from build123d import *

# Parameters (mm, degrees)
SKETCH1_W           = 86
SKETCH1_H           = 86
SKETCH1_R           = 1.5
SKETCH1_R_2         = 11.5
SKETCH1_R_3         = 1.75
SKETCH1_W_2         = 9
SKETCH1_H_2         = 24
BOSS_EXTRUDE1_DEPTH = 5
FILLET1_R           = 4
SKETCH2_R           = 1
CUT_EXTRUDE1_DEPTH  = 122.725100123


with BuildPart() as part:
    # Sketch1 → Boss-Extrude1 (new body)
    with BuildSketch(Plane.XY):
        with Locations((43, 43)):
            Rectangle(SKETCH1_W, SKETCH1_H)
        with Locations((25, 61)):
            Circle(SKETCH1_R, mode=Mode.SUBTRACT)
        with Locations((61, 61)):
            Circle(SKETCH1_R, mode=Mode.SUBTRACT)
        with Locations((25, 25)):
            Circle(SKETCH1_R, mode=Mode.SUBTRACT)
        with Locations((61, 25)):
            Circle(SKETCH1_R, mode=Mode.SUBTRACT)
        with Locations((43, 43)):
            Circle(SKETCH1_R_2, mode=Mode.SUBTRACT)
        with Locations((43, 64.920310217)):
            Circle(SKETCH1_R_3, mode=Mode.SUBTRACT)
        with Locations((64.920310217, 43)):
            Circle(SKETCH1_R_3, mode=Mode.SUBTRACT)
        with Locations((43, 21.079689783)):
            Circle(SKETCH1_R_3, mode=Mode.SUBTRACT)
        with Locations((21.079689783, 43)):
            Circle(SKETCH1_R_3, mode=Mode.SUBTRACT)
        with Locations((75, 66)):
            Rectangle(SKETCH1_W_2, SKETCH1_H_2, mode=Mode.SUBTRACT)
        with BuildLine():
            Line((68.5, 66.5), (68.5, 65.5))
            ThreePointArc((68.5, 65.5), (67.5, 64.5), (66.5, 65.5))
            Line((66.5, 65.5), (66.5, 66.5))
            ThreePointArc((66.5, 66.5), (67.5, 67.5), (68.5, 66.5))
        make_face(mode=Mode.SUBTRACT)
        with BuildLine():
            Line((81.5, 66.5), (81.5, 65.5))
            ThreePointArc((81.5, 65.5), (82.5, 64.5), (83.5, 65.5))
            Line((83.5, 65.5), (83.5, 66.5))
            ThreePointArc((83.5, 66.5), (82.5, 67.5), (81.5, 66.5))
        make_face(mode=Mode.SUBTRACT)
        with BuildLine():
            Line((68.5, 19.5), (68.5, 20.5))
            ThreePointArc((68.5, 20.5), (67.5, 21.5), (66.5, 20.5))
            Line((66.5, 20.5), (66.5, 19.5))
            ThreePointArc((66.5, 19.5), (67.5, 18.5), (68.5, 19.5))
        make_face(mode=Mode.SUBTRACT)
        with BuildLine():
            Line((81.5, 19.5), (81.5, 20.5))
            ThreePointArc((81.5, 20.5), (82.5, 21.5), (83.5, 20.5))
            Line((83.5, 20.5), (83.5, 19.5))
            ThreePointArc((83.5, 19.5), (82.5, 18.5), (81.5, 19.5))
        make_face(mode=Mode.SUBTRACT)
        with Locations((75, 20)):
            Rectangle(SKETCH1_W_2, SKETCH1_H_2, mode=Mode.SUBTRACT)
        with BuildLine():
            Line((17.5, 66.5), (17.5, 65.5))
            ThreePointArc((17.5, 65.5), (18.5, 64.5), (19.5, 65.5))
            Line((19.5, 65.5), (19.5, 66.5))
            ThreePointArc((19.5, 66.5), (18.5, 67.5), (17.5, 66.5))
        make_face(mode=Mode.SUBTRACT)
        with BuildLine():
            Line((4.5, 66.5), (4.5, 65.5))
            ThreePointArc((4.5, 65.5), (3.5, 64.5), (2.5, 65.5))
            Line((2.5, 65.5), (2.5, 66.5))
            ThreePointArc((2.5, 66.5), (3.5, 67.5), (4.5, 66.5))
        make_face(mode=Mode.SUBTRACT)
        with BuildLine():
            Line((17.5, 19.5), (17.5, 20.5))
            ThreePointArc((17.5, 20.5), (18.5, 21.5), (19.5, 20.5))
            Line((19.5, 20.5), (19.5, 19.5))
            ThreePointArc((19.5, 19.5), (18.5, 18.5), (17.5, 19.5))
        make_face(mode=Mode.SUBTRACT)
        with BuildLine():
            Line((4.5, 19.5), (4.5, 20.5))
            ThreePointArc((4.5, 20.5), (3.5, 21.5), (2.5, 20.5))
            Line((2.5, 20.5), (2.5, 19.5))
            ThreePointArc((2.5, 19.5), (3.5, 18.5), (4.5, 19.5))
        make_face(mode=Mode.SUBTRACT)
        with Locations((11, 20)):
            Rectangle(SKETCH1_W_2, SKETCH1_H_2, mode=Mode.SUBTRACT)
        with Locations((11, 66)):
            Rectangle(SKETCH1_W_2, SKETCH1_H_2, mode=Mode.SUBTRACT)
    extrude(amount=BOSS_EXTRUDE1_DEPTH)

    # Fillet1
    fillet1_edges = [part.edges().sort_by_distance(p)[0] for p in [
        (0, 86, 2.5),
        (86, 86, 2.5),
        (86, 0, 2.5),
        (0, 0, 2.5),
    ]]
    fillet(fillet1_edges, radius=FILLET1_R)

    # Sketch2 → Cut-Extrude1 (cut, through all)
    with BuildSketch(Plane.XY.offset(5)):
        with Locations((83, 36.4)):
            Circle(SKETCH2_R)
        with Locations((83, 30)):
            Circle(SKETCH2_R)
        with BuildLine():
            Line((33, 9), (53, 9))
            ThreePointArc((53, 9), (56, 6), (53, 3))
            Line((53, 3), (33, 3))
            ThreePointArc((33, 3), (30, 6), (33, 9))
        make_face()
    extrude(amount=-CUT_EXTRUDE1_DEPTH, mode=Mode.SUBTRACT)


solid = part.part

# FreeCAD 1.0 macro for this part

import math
import FreeCAD as App
import Part
import Sketcher


def edges_at(feature, points):
    """Names of the edges that pass closest to the given points."""
    edges = feature.Shape.Edges
    near = lambda p: min(range(len(edges)), key=lambda i: edges[i].distToShape(Part.Vertex(*p))[0])
    return sorted({f"Edge{near(p) + 1}" for p in points})

doc = App.newDocument("Part")
body = doc.addObject("PartDesign::Body", "Body")

sketch1 = body.newObject("Sketcher::SketchObject", "Sketch")
sketch1.AttachmentSupport = (doc.getObject("XY_Plane"), [""])
sketch1.MapMode = "FlatFace"
sketch1.addGeometry([
    Part.LineSegment(App.Vector(0, 86, 0), App.Vector(0, 0, 0)),
    Part.LineSegment(App.Vector(0, 0, 0), App.Vector(86, 0, 0)),
    Part.LineSegment(App.Vector(86, 0, 0), App.Vector(86, 86, 0)),
    Part.LineSegment(App.Vector(86, 86, 0), App.Vector(0, 86, 0)),
    Part.LineSegment(App.Vector(4.5, 20.5, 0), App.Vector(4.5, 19.5, 0)),
    Part.ArcOfCircle(Part.Circle(App.Vector(3.5, 19.5, 0), App.Vector(0, 0, 1), 1), math.radians(180), math.radians(360)),
    Part.LineSegment(App.Vector(2.5, 19.5, 0), App.Vector(2.5, 20.5, 0)),
    Part.ArcOfCircle(Part.Circle(App.Vector(3.5, 20.5, 0), App.Vector(0, 0, 1), 1), math.radians(0), math.radians(180)),
    Part.LineSegment(App.Vector(15.5, 8, 0), App.Vector(6.5, 8, 0)),
    Part.LineSegment(App.Vector(6.5, 8, 0), App.Vector(6.5, 32, 0)),
    Part.LineSegment(App.Vector(6.5, 32, 0), App.Vector(15.5, 32, 0)),
    Part.LineSegment(App.Vector(15.5, 32, 0), App.Vector(15.5, 8, 0)),
    Part.ArcOfCircle(Part.Circle(App.Vector(18.5, 19.5, 0), App.Vector(0, 0, 1), 1), math.radians(180), math.radians(360)),
    Part.LineSegment(App.Vector(17.5, 19.5, 0), App.Vector(17.5, 20.5, 0)),
    Part.ArcOfCircle(Part.Circle(App.Vector(18.5, 20.5, 0), App.Vector(0, 0, 1), 1), math.radians(0), math.radians(180)),
    Part.LineSegment(App.Vector(19.5, 20.5, 0), App.Vector(19.5, 19.5, 0)),
    Part.Circle(App.Vector(25, 25, 0), App.Vector(0, 0, 1), 1.5),
    Part.Circle(App.Vector(43, 21.1, 0), App.Vector(0, 0, 1), 1.8),
    Part.Circle(App.Vector(61, 25, 0), App.Vector(0, 0, 1), 1.5),
    Part.LineSegment(App.Vector(68.5, 20.5, 0), App.Vector(68.5, 19.5, 0)),
    Part.ArcOfCircle(Part.Circle(App.Vector(67.5, 19.5, 0), App.Vector(0, 0, 1), 1), math.radians(180), math.radians(360)),
    Part.LineSegment(App.Vector(66.5, 19.5, 0), App.Vector(66.5, 20.5, 0)),
    Part.ArcOfCircle(Part.Circle(App.Vector(67.5, 20.5, 0), App.Vector(0, 0, 1), 1), math.radians(0), math.radians(180)),
    Part.LineSegment(App.Vector(79.5, 8, 0), App.Vector(70.5, 8, 0)),
    Part.LineSegment(App.Vector(70.5, 8, 0), App.Vector(70.5, 32, 0)),
    Part.LineSegment(App.Vector(70.5, 32, 0), App.Vector(79.5, 32, 0)),
    Part.LineSegment(App.Vector(79.5, 32, 0), App.Vector(79.5, 8, 0)),
    Part.ArcOfCircle(Part.Circle(App.Vector(82.5, 19.5, 0), App.Vector(0, 0, 1), 1), math.radians(180), math.radians(360)),
    Part.LineSegment(App.Vector(81.5, 19.5, 0), App.Vector(81.5, 20.5, 0)),
    Part.ArcOfCircle(Part.Circle(App.Vector(82.5, 20.5, 0), App.Vector(0, 0, 1), 1), math.radians(0), math.radians(180)),
    Part.LineSegment(App.Vector(83.5, 20.5, 0), App.Vector(83.5, 19.5, 0)),
    Part.Circle(App.Vector(21.1, 43, 0), App.Vector(0, 0, 1), 1.8),
    Part.ArcOfCircle(Part.Circle(App.Vector(3.5, 66.5, 0), App.Vector(0, 0, 1), 1), math.radians(0), math.radians(180)),
    Part.LineSegment(App.Vector(4.5, 66.5, 0), App.Vector(4.5, 65.5, 0)),
    Part.ArcOfCircle(Part.Circle(App.Vector(3.5, 65.5, 0), App.Vector(0, 0, 1), 1), math.radians(180), math.radians(360)),
    Part.LineSegment(App.Vector(2.5, 65.5, 0), App.Vector(2.5, 66.5, 0)),
    Part.LineSegment(App.Vector(15.5, 54, 0), App.Vector(6.5, 54, 0)),
    Part.LineSegment(App.Vector(6.5, 54, 0), App.Vector(6.5, 78, 0)),
    Part.LineSegment(App.Vector(6.5, 78, 0), App.Vector(15.5, 78, 0)),
    Part.LineSegment(App.Vector(15.5, 78, 0), App.Vector(15.5, 54, 0)),
    Part.LineSegment(App.Vector(17.5, 65.5, 0), App.Vector(17.5, 66.5, 0)),
    Part.ArcOfCircle(Part.Circle(App.Vector(18.5, 66.5, 0), App.Vector(0, 0, 1), 1), math.radians(0), math.radians(180)),
    Part.LineSegment(App.Vector(19.5, 66.5, 0), App.Vector(19.5, 65.5, 0)),
    Part.ArcOfCircle(Part.Circle(App.Vector(18.5, 65.5, 0), App.Vector(0, 0, 1), 1), math.radians(180), math.radians(360)),
    Part.Circle(App.Vector(25, 61, 0), App.Vector(0, 0, 1), 1.5),
    Part.Circle(App.Vector(43, 43, 0), App.Vector(0, 0, 1), 11.5),
    Part.Circle(App.Vector(64.9, 43, 0), App.Vector(0, 0, 1), 1.8),
    Part.Circle(App.Vector(43, 64.9, 0), App.Vector(0, 0, 1), 1.8),
    Part.Circle(App.Vector(61, 61, 0), App.Vector(0, 0, 1), 1.5),
    Part.ArcOfCircle(Part.Circle(App.Vector(67.5, 66.5, 0), App.Vector(0, 0, 1), 1), math.radians(0), math.radians(180)),
    Part.LineSegment(App.Vector(68.5, 66.5, 0), App.Vector(68.5, 65.5, 0)),
    Part.ArcOfCircle(Part.Circle(App.Vector(67.5, 65.5, 0), App.Vector(0, 0, 1), 1), math.radians(180), math.radians(360)),
    Part.LineSegment(App.Vector(66.5, 65.5, 0), App.Vector(66.5, 66.5, 0)),
    Part.LineSegment(App.Vector(79.5, 54, 0), App.Vector(70.5, 54, 0)),
    Part.LineSegment(App.Vector(70.5, 54, 0), App.Vector(70.5, 78, 0)),
    Part.LineSegment(App.Vector(70.5, 78, 0), App.Vector(79.5, 78, 0)),
    Part.LineSegment(App.Vector(79.5, 78, 0), App.Vector(79.5, 54, 0)),
    Part.LineSegment(App.Vector(81.5, 65.5, 0), App.Vector(81.5, 66.5, 0)),
    Part.ArcOfCircle(Part.Circle(App.Vector(82.5, 66.5, 0), App.Vector(0, 0, 1), 1), math.radians(0), math.radians(180)),
    Part.LineSegment(App.Vector(83.5, 66.5, 0), App.Vector(83.5, 65.5, 0)),
    Part.ArcOfCircle(Part.Circle(App.Vector(82.5, 65.5, 0), App.Vector(0, 0, 1), 1), math.radians(180), math.radians(360)),
], False)
sketch1.addConstraint([
    Sketcher.Constraint("Coincident", 0, 2, 1, 1),
    Sketcher.Constraint("Coincident", 1, 2, 2, 1),
    Sketcher.Constraint("Coincident", 2, 2, 3, 1),
    Sketcher.Constraint("Coincident", 3, 2, 0, 1),
    Sketcher.Constraint("Tangent", 4, 2, 5, 2),
    Sketcher.Constraint("Tangent", 5, 1, 6, 1),
    Sketcher.Constraint("Tangent", 6, 2, 7, 2),
    Sketcher.Constraint("Tangent", 7, 1, 4, 1),
    Sketcher.Constraint("Coincident", 8, 2, 9, 1),
    Sketcher.Constraint("Coincident", 9, 2, 10, 1),
    Sketcher.Constraint("Coincident", 10, 2, 11, 1),
    Sketcher.Constraint("Coincident", 11, 2, 8, 1),
    Sketcher.Constraint("Tangent", 12, 1, 13, 1),
    Sketcher.Constraint("Tangent", 13, 2, 14, 2),
    Sketcher.Constraint("Tangent", 14, 1, 15, 1),
    Sketcher.Constraint("Tangent", 15, 2, 12, 2),
    Sketcher.Constraint("Tangent", 19, 2, 20, 2),
    Sketcher.Constraint("Tangent", 20, 1, 21, 1),
    Sketcher.Constraint("Tangent", 21, 2, 22, 2),
    Sketcher.Constraint("Tangent", 22, 1, 19, 1),
    Sketcher.Constraint("Coincident", 23, 2, 24, 1),
    Sketcher.Constraint("Coincident", 24, 2, 25, 1),
    Sketcher.Constraint("Coincident", 25, 2, 26, 1),
    Sketcher.Constraint("Coincident", 26, 2, 23, 1),
    Sketcher.Constraint("Tangent", 27, 1, 28, 1),
    Sketcher.Constraint("Tangent", 28, 2, 29, 2),
    Sketcher.Constraint("Tangent", 29, 1, 30, 1),
    Sketcher.Constraint("Tangent", 30, 2, 27, 2),
    Sketcher.Constraint("Tangent", 32, 1, 33, 1),
    Sketcher.Constraint("Tangent", 33, 2, 34, 2),
    Sketcher.Constraint("Tangent", 34, 1, 35, 1),
    Sketcher.Constraint("Tangent", 35, 2, 32, 2),
    Sketcher.Constraint("Coincident", 36, 2, 37, 1),
    Sketcher.Constraint("Coincident", 37, 2, 38, 1),
    Sketcher.Constraint("Coincident", 38, 2, 39, 1),
    Sketcher.Constraint("Coincident", 39, 2, 36, 1),
    Sketcher.Constraint("Tangent", 40, 2, 41, 2),
    Sketcher.Constraint("Tangent", 41, 1, 42, 1),
    Sketcher.Constraint("Tangent", 42, 2, 43, 2),
    Sketcher.Constraint("Tangent", 43, 1, 40, 1),
    Sketcher.Constraint("Tangent", 49, 1, 50, 1),
    Sketcher.Constraint("Tangent", 50, 2, 51, 2),
    Sketcher.Constraint("Tangent", 51, 1, 52, 1),
    Sketcher.Constraint("Tangent", 52, 2, 49, 2),
    Sketcher.Constraint("Coincident", 53, 2, 54, 1),
    Sketcher.Constraint("Coincident", 54, 2, 55, 1),
    Sketcher.Constraint("Coincident", 55, 2, 56, 1),
    Sketcher.Constraint("Coincident", 56, 2, 53, 1),
    Sketcher.Constraint("Tangent", 57, 2, 58, 2),
    Sketcher.Constraint("Tangent", 58, 1, 59, 1),
    Sketcher.Constraint("Tangent", 59, 2, 60, 2),
    Sketcher.Constraint("Tangent", 60, 1, 57, 1),
    Sketcher.Constraint("Vertical", 0),
    Sketcher.Constraint("Horizontal", 1),
    Sketcher.Constraint("Vertical", 2),
    Sketcher.Constraint("Horizontal", 3),
    Sketcher.Constraint("Vertical", 4),
    Sketcher.Constraint("Vertical", 6),
    Sketcher.Constraint("Horizontal", 8),
    Sketcher.Constraint("Vertical", 9),
    Sketcher.Constraint("Horizontal", 10),
    Sketcher.Constraint("Vertical", 11),
    Sketcher.Constraint("Vertical", 13),
    Sketcher.Constraint("Vertical", 15),
    Sketcher.Constraint("Vertical", 19),
    Sketcher.Constraint("Vertical", 21),
    Sketcher.Constraint("Horizontal", 23),
    Sketcher.Constraint("Vertical", 24),
    Sketcher.Constraint("Horizontal", 25),
    Sketcher.Constraint("Vertical", 26),
    Sketcher.Constraint("Vertical", 28),
    Sketcher.Constraint("Vertical", 30),
    Sketcher.Constraint("Vertical", 33),
    Sketcher.Constraint("Vertical", 35),
    Sketcher.Constraint("Horizontal", 36),
    Sketcher.Constraint("Vertical", 37),
    Sketcher.Constraint("Horizontal", 38),
    Sketcher.Constraint("Vertical", 39),
    Sketcher.Constraint("Vertical", 40),
    Sketcher.Constraint("Vertical", 42),
    Sketcher.Constraint("Vertical", 50),
    Sketcher.Constraint("Vertical", 52),
    Sketcher.Constraint("Horizontal", 53),
    Sketcher.Constraint("Vertical", 54),
    Sketcher.Constraint("Horizontal", 55),
    Sketcher.Constraint("Vertical", 56),
    Sketcher.Constraint("Vertical", 57),
    Sketcher.Constraint("Vertical", 59),
    Sketcher.Constraint("Coincident", 0, 2, -1, 1),
    Sketcher.Constraint("Equal", 7, 12),
    Sketcher.Constraint("Equal", 16, 18),
    Sketcher.Constraint("Equal", 14, 20),
    Sketcher.Constraint("Equal", 22, 27),
    Sketcher.Constraint("Equal", 17, 31),
    Sketcher.Constraint("Equal", 29, 32),
    Sketcher.Constraint("Equal", 34, 41),
    Sketcher.Constraint("Equal", 18, 44),
    Sketcher.Constraint("Equal", 31, 46),
    Sketcher.Constraint("Equal", 46, 47),
    Sketcher.Constraint("Equal", 44, 48),
    Sketcher.Constraint("Equal", 43, 49),
    Sketcher.Constraint("Equal", 51, 58),
    Sketcher.Constraint("Horizontal", 5, 3, 12, 3),
    Sketcher.Constraint("Horizontal", 7, 3, 14, 3),
    Sketcher.Constraint("Horizontal", 16, 3, 18, 3),
    Sketcher.Constraint("Horizontal", 12, 3, 20, 3),
    Sketcher.Constraint("Horizontal", 14, 3, 22, 3),
    Sketcher.Constraint("Horizontal", 20, 3, 27, 3),
    Sketcher.Constraint("Horizontal", 22, 3, 29, 3),
    Sketcher.Constraint("Horizontal", 32, 3, 41, 3),
    Sketcher.Constraint("Horizontal", 34, 3, 43, 3),
    Sketcher.Constraint("Horizontal", 31, 3, 45, 3),
    Sketcher.Constraint("Horizontal", 45, 3, 46, 3),
    Sketcher.Constraint("Horizontal", 44, 3, 48, 3),
    Sketcher.Constraint("Horizontal", 41, 3, 49, 3),
    Sketcher.Constraint("Horizontal", 43, 3, 51, 3),
    Sketcher.Constraint("Horizontal", 49, 3, 58, 3),
    Sketcher.Constraint("Horizontal", 51, 3, 60, 3),
    Sketcher.Constraint("Horizontal", 11, 2, 23, 2),
    Sketcher.Constraint("Horizontal", 10, 2, 24, 2),
    Sketcher.Constraint("Horizontal", 39, 2, 53, 2),
    Sketcher.Constraint("Horizontal", 38, 2, 54, 2),
    Sketcher.Constraint("Vertical", 7, 3, 32, 3),
    Sketcher.Constraint("Vertical", 14, 3, 41, 3),
    Sketcher.Constraint("Vertical", 16, 3, 44, 3),
    Sketcher.Constraint("Vertical", 17, 3, 45, 3),
    Sketcher.Constraint("Vertical", 45, 3, 47, 3),
    Sketcher.Constraint("Vertical", 18, 3, 48, 3),
    Sketcher.Constraint("Vertical", 22, 3, 49, 3),
    Sketcher.Constraint("Vertical", 29, 3, 58, 3),
    Sketcher.Constraint("Vertical", 9, 2, 36, 2),
    Sketcher.Constraint("Vertical", 11, 2, 38, 2),
    Sketcher.Constraint("Vertical", 24, 2, 53, 2),
    Sketcher.Constraint("Vertical", 26, 2, 55, 2),
    Sketcher.Constraint("Equal", 10, 23),
    Sketcher.Constraint("Equal", 3, 0),
    Sketcher.Constraint("Equal", 30, 33),
    Sketcher.Constraint("Equal", 26, 37),
    Sketcher.Constraint("Diameter", 16, 3.0),
    Sketcher.Constraint("Diameter", 45, 23.0),
    Sketcher.Constraint("Radius", 5, 1.0),
    Sketcher.Constraint("Diameter", 17, 3.5),
    Sketcher.Constraint("DistanceX", 1, 1, 1, 2, 86.0),
    Sketcher.Constraint("DistanceX", 8, 2, 8, 1, 9.0),
    Sketcher.Constraint("DistanceY", 4, 2, 4, 1, 1.0),
    Sketcher.Constraint("DistanceY", 9, 1, 9, 2, 24.0),
    Sketcher.Constraint("DistanceX", -1, 1, 16, 3, 25.0),
    Sketcher.Constraint("DistanceY", -1, 1, 16, 3, 25.0),
    Sketcher.Constraint("DistanceX", -1, 1, 17, 3, 43.0),
    Sketcher.Constraint("DistanceX", -1, 1, 18, 3, 61.0),
    Sketcher.Constraint("DistanceY", -1, 1, 31, 3, 43.0),
    Sketcher.Constraint("DistanceY", -1, 1, 44, 3, 61.0),
    Sketcher.Constraint("DistanceY", -1, 1, 8, 2, 8.0),
    Sketcher.Constraint("DistanceY", -1, 1, 36, 2, 54.0),
    Sketcher.Constraint("DistanceX", -1, 1, 5, 3, 3.5),
    Sketcher.Constraint("DistanceY", -1, 1, 5, 3, 19.5),
    Sketcher.Constraint("DistanceX", -1, 1, 12, 3, 18.5),
    Sketcher.Constraint("DistanceX", -1, 1, 20, 3, 67.5),
    Sketcher.Constraint("DistanceX", -1, 1, 27, 3, 82.5),
    Sketcher.Constraint("DistanceY", -1, 1, 32, 3, 66.5),
    Sketcher.Constraint("DistanceX", -1, 1, 8, 2, 6.5),
    Sketcher.Constraint("DistanceX", -1, 1, 23, 2, 70.5),
    Sketcher.Constraint("DistanceY", -1, 1, 17, 3, 21.07969),
    Sketcher.Constraint("DistanceX", -1, 1, 31, 3, 21.07969),
    Sketcher.Constraint("DistanceX", -1, 1, 46, 3, 64.92031),
    Sketcher.Constraint("DistanceY", -1, 1, 47, 3, 64.92031),
])
pad1 = body.newObject("PartDesign::Pad", "Pad")
pad1.Profile = sketch1
pad1.Length = 5
doc.recompute()

fillet = body.newObject("PartDesign::Fillet", "Fillet")
fillet.Base = (pad1, edges_at(pad1, [
    (0, 86, 2.5),
    (86, 86, 2.5),
    (86, 0, 2.5),
    (0, 0, 2.5),
]))
fillet.Radius = 4

sketch2 = body.newObject("Sketcher::SketchObject", "Sketch001")
sketch2.AttachmentSupport = (doc.getObject("XY_Plane"), [""])
sketch2.MapMode = "FlatFace"
sketch2.AttachmentOffset = App.Placement(App.Vector(0, 0, 5), App.Rotation())
sketch2.addGeometry([
    Part.Circle(App.Vector(83, 36.4, 0), App.Vector(0, 0, 1), 1),
    Part.Circle(App.Vector(83, 30, 0), App.Vector(0, 0, 1), 1),
    Part.LineSegment(App.Vector(53, 9, 0), App.Vector(33, 9, 0)),
    Part.ArcOfCircle(Part.Circle(App.Vector(33, 6, 0), App.Vector(0, 0, 1), 3), math.radians(90), math.radians(270)),
    Part.LineSegment(App.Vector(33, 3, 0), App.Vector(53, 3, 0)),
    Part.ArcOfCircle(Part.Circle(App.Vector(53, 6, 0), App.Vector(0, 0, 1), 3), math.radians(-90), math.radians(90)),
], False)
sketch2.addConstraint([
    Sketcher.Constraint("Tangent", 2, 2, 3, 1),
    Sketcher.Constraint("Tangent", 3, 2, 4, 1),
    Sketcher.Constraint("Tangent", 4, 2, 5, 1),
    Sketcher.Constraint("Tangent", 5, 2, 2, 1),
    Sketcher.Constraint("Horizontal", 2),
    Sketcher.Constraint("Horizontal", 4),
    Sketcher.Constraint("Equal", 0, 1),
    Sketcher.Constraint("Vertical", 0, 3, 1, 3),
    Sketcher.Constraint("Diameter", 0, 2.0),
    Sketcher.Constraint("Radius", 3, 3.0),
    Sketcher.Constraint("DistanceX", 2, 2, 2, 1, 20.0),
    Sketcher.Constraint("DistanceX", -1, 1, 0, 3, 83.0),
    Sketcher.Constraint("DistanceY", -1, 1, 1, 3, 30.0),
    Sketcher.Constraint("DistanceX", -1, 1, 3, 3, 33.0),
    Sketcher.Constraint("DistanceY", -1, 1, 3, 3, 6.0),
    Sketcher.Constraint("DistanceY", -1, 1, 0, 3, 36.4),
])
pocket1 = body.newObject("PartDesign::Pocket", "Pocket")
pocket1.Profile = sketch2
pocket1.Type = "ThroughAll"

doc.recompute()
